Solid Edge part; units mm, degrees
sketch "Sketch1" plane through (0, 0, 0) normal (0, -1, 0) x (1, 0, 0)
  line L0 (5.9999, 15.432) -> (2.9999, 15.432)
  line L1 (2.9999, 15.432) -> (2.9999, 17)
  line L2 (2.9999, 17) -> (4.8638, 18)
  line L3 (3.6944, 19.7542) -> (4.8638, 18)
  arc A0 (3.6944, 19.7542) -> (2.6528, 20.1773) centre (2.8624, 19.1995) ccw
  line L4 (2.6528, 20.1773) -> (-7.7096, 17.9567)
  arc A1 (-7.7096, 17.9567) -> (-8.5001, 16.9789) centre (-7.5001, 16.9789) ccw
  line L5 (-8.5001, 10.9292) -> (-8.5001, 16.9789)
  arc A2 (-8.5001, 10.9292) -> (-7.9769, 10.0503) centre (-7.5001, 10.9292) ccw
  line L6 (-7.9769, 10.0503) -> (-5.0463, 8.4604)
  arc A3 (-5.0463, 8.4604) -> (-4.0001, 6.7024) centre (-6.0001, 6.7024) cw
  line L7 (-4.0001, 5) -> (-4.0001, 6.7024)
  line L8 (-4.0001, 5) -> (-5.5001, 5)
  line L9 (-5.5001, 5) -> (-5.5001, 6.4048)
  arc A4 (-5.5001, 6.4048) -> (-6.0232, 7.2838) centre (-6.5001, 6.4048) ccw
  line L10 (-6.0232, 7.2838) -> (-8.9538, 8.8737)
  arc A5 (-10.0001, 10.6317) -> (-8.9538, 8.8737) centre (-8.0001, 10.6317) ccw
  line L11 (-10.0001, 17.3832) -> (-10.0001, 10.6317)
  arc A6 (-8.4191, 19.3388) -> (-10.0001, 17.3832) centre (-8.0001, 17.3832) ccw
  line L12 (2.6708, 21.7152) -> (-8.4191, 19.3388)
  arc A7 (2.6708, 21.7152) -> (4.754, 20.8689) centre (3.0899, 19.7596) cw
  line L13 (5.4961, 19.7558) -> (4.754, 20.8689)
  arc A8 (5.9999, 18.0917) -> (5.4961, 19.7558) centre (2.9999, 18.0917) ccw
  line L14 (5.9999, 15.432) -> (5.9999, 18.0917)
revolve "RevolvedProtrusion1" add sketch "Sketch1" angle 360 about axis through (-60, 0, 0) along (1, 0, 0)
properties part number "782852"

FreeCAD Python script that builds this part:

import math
import FreeCAD as App
import Part
import Sketcher

V = App.Vector

doc = App.newDocument("Part")
body = doc.addObject("PartDesign::Body", "Body")

# Sketch on XZ plane
sketch1 = body.newObject("Sketcher::SketchObject", "Sketch")
sketch1.AttachmentSupport = (doc.getObject("XZ_Plane"), [""])
sketch1.MapMode = "FlatFace"
sketch1.addGeometry([
    Part.LineSegment(V(2.9999, 15.432, 0), V(5.9999, 15.432, 0)),  # 0
    Part.LineSegment(V(5.9999, 15.432, 0), V(5.9999, 18.0917, 0)),  # 1
    Part.ArcOfCircle(Part.Circle(V(2.9999, 18.0917, 0), V(0, 0, 1), 3), math.radians(0), math.radians(33.689538)),  # 2
    Part.LineSegment(V(5.4961, 19.7558, 0), V(4.754, 20.8689, 0)),  # 3
    Part.ArcOfCircle(Part.Circle(V(3.0899, 19.7596, 0), V(0, 0, 1), 2.000004), math.radians(33.687684), math.radians(102.095958)),  # 4
    Part.LineSegment(V(2.6708, 21.7152, 0), V(-8.4191, 19.3388, 0)),  # 5
    Part.ArcOfCircle(Part.Circle(V(-8.0001, 17.3832, 0), V(0, 0, 1), 1.999983), math.radians(102.093156), math.radians(180)),  # 6
    Part.LineSegment(V(-10.0001, 17.3832, 0), V(-10.0001, 10.6317, 0)),  # 7
    Part.ArcOfCircle(Part.Circle(V(-8.0001, 10.6317, 0), V(0, 0, 1), 2), math.radians(180), math.radians(241.520547)),  # 8
    Part.LineSegment(V(-8.9538, 8.8737, 0), V(-6.0232, 7.2838, 0)),  # 9
    Part.ArcOfCircle(Part.Circle(V(-6.5001, 6.4048, 0), V(0, 0, 1), 1), math.radians(0), math.radians(61.518029)),  # 10
    Part.LineSegment(V(-5.5001, 6.4048, 0), V(-5.5001, 5, 0)),  # 11
    Part.LineSegment(V(-5.5001, 5, 0), V(-4.0001, 5, 0)),  # 12
    Part.LineSegment(V(-4.0001, 5, 0), V(-4.0001, 6.7024, 0)),  # 13
    Part.ArcOfCircle(Part.Circle(V(-6.0001, 6.7024, 0), V(0, 0, 1), 2.000075), math.radians(0), math.radians(61.518029)),  # 14
    Part.LineSegment(V(-5.0463, 8.4604, 0), V(-7.9769, 10.0503, 0)),  # 15
    Part.ArcOfCircle(Part.Circle(V(-7.5001, 10.9292, 0), V(0, 0, 1), 1), math.radians(180), math.radians(241.520333)),  # 16
    Part.LineSegment(V(-8.5001, 10.9292, 0), V(-8.5001, 16.9789, 0)),  # 17
    Part.ArcOfCircle(Part.Circle(V(-7.5001, 16.9789, 0), V(0, 0, 1), 0.999992), math.radians(102.093156), math.radians(180)),  # 18
    Part.LineSegment(V(-7.7096, 17.9567, 0), V(2.6528, 20.1773, 0)),  # 19
    Part.ArcOfCircle(Part.Circle(V(2.8624, 19.1995, 0), V(0, 0, 1), 0.999958), math.radians(33.691657), math.radians(102.098759)),  # 20
    Part.LineSegment(V(3.6944, 19.7542, 0), V(4.8638, 18, 0)),  # 21
    Part.LineSegment(V(4.8638, 18, 0), V(2.9999, 17, 0)),  # 22
    Part.LineSegment(V(2.9999, 17, 0), V(2.9999, 15.432, 0)),  # 23
], False)
sketch1.addConstraint([
    Sketcher.Constraint("Coincident", 0, 2, 1, 1),
    Sketcher.Constraint("Coincident", 1, 2, 2, 1),
    Sketcher.Constraint("Coincident", 2, 2, 3, 1),
    Sketcher.Constraint("Coincident", 3, 2, 4, 1),
    Sketcher.Constraint("Coincident", 4, 2, 5, 1),
    Sketcher.Constraint("Coincident", 5, 2, 6, 1),
    Sketcher.Constraint("Coincident", 6, 2, 7, 1),
    Sketcher.Constraint("Coincident", 7, 2, 8, 1),
    Sketcher.Constraint("Coincident", 8, 2, 9, 1),
    Sketcher.Constraint("Coincident", 9, 2, 10, 2),
    Sketcher.Constraint("Coincident", 10, 1, 11, 1),
    Sketcher.Constraint("Coincident", 11, 2, 12, 1),
    Sketcher.Constraint("Coincident", 12, 2, 13, 1),
    Sketcher.Constraint("Coincident", 13, 2, 14, 1),
    Sketcher.Constraint("Coincident", 14, 2, 15, 1),
    Sketcher.Constraint("Coincident", 15, 2, 16, 2),
    Sketcher.Constraint("Coincident", 16, 1, 17, 1),
    Sketcher.Constraint("Coincident", 17, 2, 18, 2),
    Sketcher.Constraint("Coincident", 18, 1, 19, 1),
    Sketcher.Constraint("Coincident", 19, 2, 20, 2),
    Sketcher.Constraint("Coincident", 20, 1, 21, 1),
    Sketcher.Constraint("Coincident", 21, 2, 22, 1),
    Sketcher.Constraint("Coincident", 22, 2, 23, 1),
    Sketcher.Constraint("Coincident", 23, 2, 0, 1),
    Sketcher.Constraint("Horizontal", 0),
    Sketcher.Constraint("Vertical", 1),
    Sketcher.Constraint("Vertical", 7),
    Sketcher.Constraint("Vertical", 11),
    Sketcher.Constraint("Horizontal", 12),
    Sketcher.Constraint("Vertical", 13),
    Sketcher.Constraint("Vertical", 17),
    Sketcher.Constraint("Vertical", 23),
    Sketcher.Constraint("Radius", 2, 3.0),
    Sketcher.Constraint("Radius", 4, 2.0),
    Sketcher.Constraint("Radius", 6, 2.0),
    Sketcher.Constraint("Radius", 8, 2.0),
    Sketcher.Constraint("Radius", 10, 1.0),
    Sketcher.Constraint("Radius", 14, 2.0),
    Sketcher.Constraint("Radius", 16, 1.0),
    Sketcher.Constraint("Radius", 18, 1.0),
    Sketcher.Constraint("Radius", 20, 1.0),
    Sketcher.Constraint("DistanceX", 0, 1, 0, 2, 3.0),
    Sketcher.Constraint("DistanceX", 12, 1, 12, 2, 1.5),
    Sketcher.Constraint("DistanceX", -1, 1, 2, 3, 3.0),
    Sketcher.Constraint("DistanceX", 6, 3, -1, 1, 8.0),
    Sketcher.Constraint("DistanceX", 14, 3, -1, 1, 6.0),
    Sketcher.Constraint("DistanceY", -1, 1, 11, 2, 5.0),
    Sketcher.Constraint("DistanceY", -1, 1, 21, 2, 18.0),
    Sketcher.Constraint("DistanceY", -1, 1, 22, 2, 17.0),
    Sketcher.Constraint("DistanceX", 16, 3, 10, 3, 1.0),
    Sketcher.Constraint("DistanceY", 23, 2, 23, 1, 1.568),
    Sketcher.Constraint("DistanceX", -1, 1, 4, 3, 3.09),
    Sketcher.Constraint("DistanceY", 8, 3, 2, 3, 7.46),
    Sketcher.Constraint("DistanceY", 20, 3, 4, 3, 0.56),
    Sketcher.Constraint("DistanceY", 18, 3, 5, 2, 2.36),
    Sketcher.Constraint("DistanceY", 9, 2, 8, 2, 1.59),
    Sketcher.Constraint("DistanceY", 14, 2, 15, 2, 1.59),
    Sketcher.Constraint("DistanceY", 17, 2, 5, 2, 2.36),
    Sketcher.Constraint("Distance", 9, 3.334),
    Sketcher.Constraint("Distance", 15, 3.334),
    Sketcher.Constraint("DistanceY", 1, 1, 1, 2, 2.6597),
    Sketcher.Constraint("DistanceY", 7, 2, 7, 1, 6.7515),
    Sketcher.Constraint("DistanceY", 11, 2, 11, 1, 1.4048),
    Sketcher.Constraint("DistanceY", 13, 1, 13, 2, 1.7024),
    Sketcher.Constraint("DistanceY", 17, 1, 17, 2, 6.0497),
    Sketcher.Constraint("DistanceY", -1, 1, 18, 3, 16.979),
    Sketcher.Constraint("DistanceX", -1, 1, 2, 2, 5.496),
    Sketcher.Constraint("DistanceX", -1, 1, 3, 2, 4.754),
    Sketcher.Constraint("DistanceY", -1, 1, 3, 2, 20.869),
    Sketcher.Constraint("DistanceX", 5, 2, -1, 1, 8.419),
    Sketcher.Constraint("DistanceX", 15, 2, -1, 1, 7.977),
    Sketcher.Constraint("DistanceY", 2, 3, 4, 3, 1.668),
    Sketcher.Constraint("DistanceY", 16, 3, 6, 3, 6.454),
    Sketcher.Constraint("DistanceX", 4, 2, 4, 3, 0.419),
    Sketcher.Constraint("DistanceY", 16, 3, 6, 2, 6.454),
    Sketcher.Constraint("DistanceY", 8, 2, 8, 3, 1.758),
    Sketcher.Constraint("DistanceY", 18, 1, 5, 2, 1.382),
    Sketcher.Constraint("DistanceX", 19, 2, 4, 3, 0.437),
    Sketcher.Constraint("DistanceY", 19, 2, 4, 2, 1.538),
    Sketcher.Constraint("DistanceX", 20, 3, 20, 1, 0.832),
    Sketcher.Constraint("DistanceX", 21, 2, 1, 2, 1.136),
])
revolution = body.newObject("PartDesign::Revolution", "Revolution")
revolution.Profile = sketch1
revolution.ReferenceAxis = (sketch1, ["H_Axis"])
revolution.Angle = 360

doc.recompute()
